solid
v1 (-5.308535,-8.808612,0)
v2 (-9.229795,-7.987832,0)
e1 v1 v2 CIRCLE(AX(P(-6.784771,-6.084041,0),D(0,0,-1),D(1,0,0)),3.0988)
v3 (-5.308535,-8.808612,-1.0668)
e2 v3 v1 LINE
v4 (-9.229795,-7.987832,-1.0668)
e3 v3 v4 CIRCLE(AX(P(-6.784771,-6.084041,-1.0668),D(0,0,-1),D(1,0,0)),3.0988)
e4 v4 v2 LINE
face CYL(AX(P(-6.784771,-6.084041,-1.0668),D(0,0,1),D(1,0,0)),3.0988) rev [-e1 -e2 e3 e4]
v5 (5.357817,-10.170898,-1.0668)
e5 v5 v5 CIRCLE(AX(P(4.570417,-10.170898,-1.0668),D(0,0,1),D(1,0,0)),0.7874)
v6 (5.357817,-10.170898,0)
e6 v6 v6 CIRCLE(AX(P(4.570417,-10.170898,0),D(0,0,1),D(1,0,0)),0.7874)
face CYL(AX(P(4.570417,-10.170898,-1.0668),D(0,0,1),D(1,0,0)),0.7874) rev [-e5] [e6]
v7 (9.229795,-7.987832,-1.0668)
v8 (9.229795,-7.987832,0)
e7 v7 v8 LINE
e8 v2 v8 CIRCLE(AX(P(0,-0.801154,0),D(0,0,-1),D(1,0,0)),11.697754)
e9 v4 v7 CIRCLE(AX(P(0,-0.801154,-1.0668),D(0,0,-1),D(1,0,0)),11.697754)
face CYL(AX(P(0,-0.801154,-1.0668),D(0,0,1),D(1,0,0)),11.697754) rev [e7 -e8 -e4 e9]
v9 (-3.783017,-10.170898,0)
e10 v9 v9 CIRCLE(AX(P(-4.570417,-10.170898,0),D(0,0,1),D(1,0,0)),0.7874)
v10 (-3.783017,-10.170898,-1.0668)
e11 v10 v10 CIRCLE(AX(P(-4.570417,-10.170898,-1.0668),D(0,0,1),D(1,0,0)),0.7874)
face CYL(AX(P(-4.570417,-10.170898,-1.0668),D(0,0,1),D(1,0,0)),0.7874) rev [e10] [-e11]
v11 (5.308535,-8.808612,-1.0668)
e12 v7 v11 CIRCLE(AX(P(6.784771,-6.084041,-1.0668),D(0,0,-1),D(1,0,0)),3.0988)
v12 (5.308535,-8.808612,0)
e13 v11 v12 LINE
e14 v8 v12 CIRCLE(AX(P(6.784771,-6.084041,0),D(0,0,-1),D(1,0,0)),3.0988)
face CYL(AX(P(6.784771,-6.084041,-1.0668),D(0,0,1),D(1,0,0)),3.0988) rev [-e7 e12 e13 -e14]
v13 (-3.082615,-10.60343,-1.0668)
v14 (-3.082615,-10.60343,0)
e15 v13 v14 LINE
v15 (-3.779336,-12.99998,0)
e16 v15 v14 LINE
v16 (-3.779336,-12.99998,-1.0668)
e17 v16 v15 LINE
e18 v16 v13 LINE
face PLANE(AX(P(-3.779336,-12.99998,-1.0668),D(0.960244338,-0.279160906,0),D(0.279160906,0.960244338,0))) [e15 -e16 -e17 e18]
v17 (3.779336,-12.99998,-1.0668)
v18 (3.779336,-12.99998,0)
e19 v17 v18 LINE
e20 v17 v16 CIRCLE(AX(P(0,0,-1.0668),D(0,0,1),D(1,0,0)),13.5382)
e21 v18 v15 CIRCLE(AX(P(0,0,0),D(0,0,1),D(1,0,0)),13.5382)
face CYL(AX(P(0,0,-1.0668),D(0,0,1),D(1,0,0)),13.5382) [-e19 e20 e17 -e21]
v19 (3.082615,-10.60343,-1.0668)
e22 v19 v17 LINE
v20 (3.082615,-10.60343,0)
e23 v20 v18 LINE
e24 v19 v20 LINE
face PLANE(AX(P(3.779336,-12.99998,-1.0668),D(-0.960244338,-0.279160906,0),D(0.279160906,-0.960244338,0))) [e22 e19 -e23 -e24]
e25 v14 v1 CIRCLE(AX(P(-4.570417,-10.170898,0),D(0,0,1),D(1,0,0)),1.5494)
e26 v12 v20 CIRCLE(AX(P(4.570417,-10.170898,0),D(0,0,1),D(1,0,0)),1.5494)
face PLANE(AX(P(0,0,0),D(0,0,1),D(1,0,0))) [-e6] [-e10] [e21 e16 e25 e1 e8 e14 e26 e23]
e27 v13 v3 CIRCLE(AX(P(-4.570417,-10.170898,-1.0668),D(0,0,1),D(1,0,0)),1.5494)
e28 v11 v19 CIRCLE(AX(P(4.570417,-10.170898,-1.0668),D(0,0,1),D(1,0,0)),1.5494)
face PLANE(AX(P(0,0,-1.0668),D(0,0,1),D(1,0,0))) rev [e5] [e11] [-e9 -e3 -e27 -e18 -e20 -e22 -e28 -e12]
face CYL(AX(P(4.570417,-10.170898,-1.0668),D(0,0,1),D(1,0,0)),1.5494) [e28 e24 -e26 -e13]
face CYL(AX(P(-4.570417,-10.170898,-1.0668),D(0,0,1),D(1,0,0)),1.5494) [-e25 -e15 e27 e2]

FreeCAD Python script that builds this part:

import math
import FreeCAD as App
import Part
import Sketcher
from FreeCAD import Vector
Q = App.Units.Quantity

doc = App.newDocument("Part")
body = doc.addObject("PartDesign::Body", "Body")

# Sketch on XY plane
sketch1 = body.newObject("Sketcher::SketchObject", "Sketch")
sketch1.AttachmentSupport = (doc.getObject("XY_Plane"), [""])
sketch1.MapMode = "FlatFace"
sketch1.addGeometry(Part.LineSegment(Vector(3.1, -10.6, 0), Vector(3.8, -13, 0)), False)
sketch1.addGeometry(Part.ArcOfCircle(Part.Circle(Vector(0, 0, 0), Vector(0, 0, 1), 13.5), math.radians(-74), math.radians(254)), False)
sketch1.addGeometry(Part.LineSegment(Vector(-3.8, -13, 0), Vector(-3.1, -10.6, 0)), False)
sketch1.addGeometry(Part.ArcOfCircle(Part.Circle(Vector(-4.6, -10.2, 0), Vector(0, 0, 1), 1.5), math.radians(-16), math.radians(118)), False)
sketch1.addGeometry(Part.ArcOfCircle(Part.Circle(Vector(-6.8, -6.1, 0), Vector(0, 0, 1), 3.1), math.radians(-142), math.radians(-62)), False)
sketch1.addGeometry(Part.ArcOfCircle(Part.Circle(Vector(0, -0.8, 0), Vector(0, 0, 1), 11.7), math.radians(-38), math.radians(218)), False)
sketch1.addGeometry(Part.ArcOfCircle(Part.Circle(Vector(6.8, -6.1, 0), Vector(0, 0, 1), 3.1), math.radians(-118), math.radians(-38)), False)
sketch1.addGeometry(Part.ArcOfCircle(Part.Circle(Vector(4.6, -10.2, 0), Vector(0, 0, 1), 1.5), math.radians(62), math.radians(196)), False)
sketch1.addGeometry(Part.Circle(Vector(4.6, -10.2, 0), Vector(0, 0, 1), 0.8), False)
sketch1.addGeometry(Part.Circle(Vector(-4.6, -10.2, 0), Vector(0, 0, 1), 0.8), False)
sketch1.addConstraint(Sketcher.Constraint("Coincident", 0, 2, 1, 1))
sketch1.addConstraint(Sketcher.Constraint("Coincident", 1, 2, 2, 1))
sketch1.addConstraint(Sketcher.Constraint("Tangent", 2, 2, 3, 1))
sketch1.addConstraint(Sketcher.Constraint("Tangent", 3, 2, 4, 2))
sketch1.addConstraint(Sketcher.Constraint("Tangent", 4, 1, 5, 2))
sketch1.addConstraint(Sketcher.Constraint("Tangent", 5, 1, 6, 2))
sketch1.addConstraint(Sketcher.Constraint("Tangent", 6, 1, 7, 1))
sketch1.addConstraint(Sketcher.Constraint("Tangent", 7, 2, 0, 1))
sketch1.addConstraint(Sketcher.Constraint("Coincident", 1, 3, -1, 1))
sketch1.addConstraint(Sketcher.Constraint("Coincident", 8, 3, 7, 3))
sketch1.addConstraint(Sketcher.Constraint("Coincident", 9, 3, 3, 3))
sketch1.addConstraint(Sketcher.Constraint("Equal", 4, 6))
sketch1.addConstraint(Sketcher.Constraint("Equal", 3, 7))
sketch1.addConstraint(Sketcher.Constraint("Equal", 8, 9))
sketch1.addConstraint(Sketcher.Constraint("Symmetric", 4, 3, 6, 3, -2))
sketch1.addConstraint(Sketcher.Constraint("Symmetric", 2, 2, 7, 2, -2))
sketch1.addConstraint(Sketcher.Constraint("Diameter", 8, Q("0.062 in")))
sketch1.addConstraint(Sketcher.Constraint("Radius", 1, Q("0.533 in")))
sketch1.addConstraint(Sketcher.Constraint("Radius", 3, Q("0.061 in")))
sketch1.addConstraint(Sketcher.Constraint("Radius", 4, Q("0.122 in")))
sketch1.addConstraint(Sketcher.Constraint("Radius", 5, Q("11.697754 mm")))
sketch1.addConstraint(Sketcher.Constraint("DistanceY", 3, 3, 4, 3, Q("0.1608999 in")))
sketch1.addConstraint(Sketcher.Constraint("DistanceY", 3, 3, -1, 1, Q("10.170898 mm")))
sketch1.addConstraint(Sketcher.Constraint("DistanceX", 3, 2, 1, 2, Q("1.529199 mm")))
sketch1.addConstraint(Sketcher.Constraint("Distance", 0, Q("2.495771 mm")))
pad1 = body.newObject("PartDesign::Pad", "Pad")
pad1.Profile = sketch1
pad1.Length = Q("0.042 in")
pad1.Reversed = True

doc.recompute()
